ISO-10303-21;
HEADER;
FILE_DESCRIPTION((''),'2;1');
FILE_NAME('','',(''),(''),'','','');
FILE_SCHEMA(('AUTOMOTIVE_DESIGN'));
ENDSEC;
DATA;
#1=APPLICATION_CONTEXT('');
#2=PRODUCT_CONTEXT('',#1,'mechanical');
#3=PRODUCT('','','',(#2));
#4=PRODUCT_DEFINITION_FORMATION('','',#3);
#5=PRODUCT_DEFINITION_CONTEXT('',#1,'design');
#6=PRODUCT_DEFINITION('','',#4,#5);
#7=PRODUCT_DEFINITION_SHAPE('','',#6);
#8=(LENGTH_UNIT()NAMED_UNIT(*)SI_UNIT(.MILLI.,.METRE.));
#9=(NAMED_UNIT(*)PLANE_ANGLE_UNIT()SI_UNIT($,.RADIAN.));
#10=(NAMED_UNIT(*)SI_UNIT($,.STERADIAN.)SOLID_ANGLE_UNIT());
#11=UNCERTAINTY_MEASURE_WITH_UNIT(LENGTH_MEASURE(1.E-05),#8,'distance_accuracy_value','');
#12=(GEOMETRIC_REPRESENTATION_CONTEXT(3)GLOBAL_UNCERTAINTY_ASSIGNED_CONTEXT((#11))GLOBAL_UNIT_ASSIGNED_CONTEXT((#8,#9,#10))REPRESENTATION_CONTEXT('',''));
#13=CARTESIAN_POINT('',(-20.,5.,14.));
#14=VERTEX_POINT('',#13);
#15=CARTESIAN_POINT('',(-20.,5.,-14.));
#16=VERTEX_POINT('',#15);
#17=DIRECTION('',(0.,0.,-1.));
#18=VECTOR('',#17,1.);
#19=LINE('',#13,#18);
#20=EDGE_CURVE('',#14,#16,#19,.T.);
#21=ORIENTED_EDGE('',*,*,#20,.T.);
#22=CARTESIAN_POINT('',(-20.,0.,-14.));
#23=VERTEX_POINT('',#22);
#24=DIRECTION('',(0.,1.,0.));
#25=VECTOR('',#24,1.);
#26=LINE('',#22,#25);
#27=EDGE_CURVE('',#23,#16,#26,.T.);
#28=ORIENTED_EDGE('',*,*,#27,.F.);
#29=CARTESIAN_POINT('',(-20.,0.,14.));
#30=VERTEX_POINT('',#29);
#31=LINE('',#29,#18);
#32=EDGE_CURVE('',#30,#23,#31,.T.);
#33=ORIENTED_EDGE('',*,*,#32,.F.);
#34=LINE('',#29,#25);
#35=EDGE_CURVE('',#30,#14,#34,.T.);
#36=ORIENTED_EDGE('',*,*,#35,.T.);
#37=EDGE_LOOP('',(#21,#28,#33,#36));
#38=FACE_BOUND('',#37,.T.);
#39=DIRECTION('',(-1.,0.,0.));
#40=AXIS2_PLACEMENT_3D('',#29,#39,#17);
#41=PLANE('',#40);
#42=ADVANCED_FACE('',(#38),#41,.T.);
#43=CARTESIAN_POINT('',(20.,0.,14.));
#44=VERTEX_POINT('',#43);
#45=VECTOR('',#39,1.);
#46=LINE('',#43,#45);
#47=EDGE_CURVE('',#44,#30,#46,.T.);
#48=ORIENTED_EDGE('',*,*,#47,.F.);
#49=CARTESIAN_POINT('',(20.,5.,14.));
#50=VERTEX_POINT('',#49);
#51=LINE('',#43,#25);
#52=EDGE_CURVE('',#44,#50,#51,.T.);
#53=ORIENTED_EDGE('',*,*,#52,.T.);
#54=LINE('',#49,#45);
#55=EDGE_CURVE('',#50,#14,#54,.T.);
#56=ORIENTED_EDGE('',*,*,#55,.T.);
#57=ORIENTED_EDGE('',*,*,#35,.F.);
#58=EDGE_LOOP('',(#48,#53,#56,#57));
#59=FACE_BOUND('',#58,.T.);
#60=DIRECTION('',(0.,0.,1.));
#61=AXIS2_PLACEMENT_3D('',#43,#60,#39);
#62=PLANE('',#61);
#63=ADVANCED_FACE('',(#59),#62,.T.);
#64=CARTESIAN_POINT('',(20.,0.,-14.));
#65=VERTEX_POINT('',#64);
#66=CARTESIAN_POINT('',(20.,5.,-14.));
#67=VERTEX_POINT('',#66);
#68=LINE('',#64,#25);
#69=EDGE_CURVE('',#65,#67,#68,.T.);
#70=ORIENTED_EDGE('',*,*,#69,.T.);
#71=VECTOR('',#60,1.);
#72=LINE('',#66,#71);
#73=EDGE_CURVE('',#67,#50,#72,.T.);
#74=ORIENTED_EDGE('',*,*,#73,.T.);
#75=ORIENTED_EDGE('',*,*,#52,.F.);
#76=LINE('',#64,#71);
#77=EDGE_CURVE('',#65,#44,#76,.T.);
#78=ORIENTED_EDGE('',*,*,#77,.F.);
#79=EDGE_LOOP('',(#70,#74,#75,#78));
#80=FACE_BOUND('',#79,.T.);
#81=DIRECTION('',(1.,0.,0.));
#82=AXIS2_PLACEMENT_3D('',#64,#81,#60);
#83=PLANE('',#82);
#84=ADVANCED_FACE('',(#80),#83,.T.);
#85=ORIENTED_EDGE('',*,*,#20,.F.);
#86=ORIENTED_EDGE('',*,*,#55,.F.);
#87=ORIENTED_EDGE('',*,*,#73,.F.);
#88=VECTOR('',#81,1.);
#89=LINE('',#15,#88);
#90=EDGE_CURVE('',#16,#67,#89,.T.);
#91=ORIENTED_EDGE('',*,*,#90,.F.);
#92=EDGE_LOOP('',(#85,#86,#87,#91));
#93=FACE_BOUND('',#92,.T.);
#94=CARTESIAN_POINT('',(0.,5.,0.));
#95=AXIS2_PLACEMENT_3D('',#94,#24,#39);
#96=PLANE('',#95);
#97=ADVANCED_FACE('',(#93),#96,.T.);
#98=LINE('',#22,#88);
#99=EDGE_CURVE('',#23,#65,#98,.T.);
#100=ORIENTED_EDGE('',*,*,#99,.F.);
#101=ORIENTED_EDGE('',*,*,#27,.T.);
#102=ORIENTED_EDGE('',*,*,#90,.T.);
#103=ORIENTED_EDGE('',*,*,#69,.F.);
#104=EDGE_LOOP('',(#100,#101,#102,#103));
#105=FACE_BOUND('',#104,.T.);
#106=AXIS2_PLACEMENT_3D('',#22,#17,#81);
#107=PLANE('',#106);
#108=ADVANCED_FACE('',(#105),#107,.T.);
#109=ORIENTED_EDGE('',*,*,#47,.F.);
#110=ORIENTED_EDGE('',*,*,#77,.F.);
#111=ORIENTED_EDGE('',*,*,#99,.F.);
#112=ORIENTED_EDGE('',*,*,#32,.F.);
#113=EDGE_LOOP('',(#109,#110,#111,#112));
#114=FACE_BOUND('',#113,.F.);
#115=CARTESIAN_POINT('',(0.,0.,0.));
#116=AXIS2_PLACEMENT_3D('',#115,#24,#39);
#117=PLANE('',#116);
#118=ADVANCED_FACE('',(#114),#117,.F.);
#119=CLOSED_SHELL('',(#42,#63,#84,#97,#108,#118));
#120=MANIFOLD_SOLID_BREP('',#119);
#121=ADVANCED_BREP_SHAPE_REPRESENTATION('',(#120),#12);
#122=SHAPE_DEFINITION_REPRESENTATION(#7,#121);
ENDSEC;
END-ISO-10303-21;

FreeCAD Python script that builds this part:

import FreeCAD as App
import Part
import Sketcher
Q = App.Units.Quantity


def add_polygon(sketch, points):
    """Adds a closed chain of lines whose ends are joined by coincident constraints."""
    first, n = sketch.GeometryCount, len(points)
    for a, b in zip(points, points[1:] + points[:1]):
        sketch.addGeometry(Part.LineSegment(App.Vector(*a, 0), App.Vector(*b, 0)), False)
    for i in range(n):
        sketch.addConstraint(Sketcher.Constraint("Coincident", first + i, 2, first + (i + 1) % n, 1))

doc = App.newDocument("Part")
params = doc.addObject("Spreadsheet::Sheet", "Params")
for row, (alias, value) in enumerate([
    ("sketch1_width", "40 mm"),
    ("sketch1_height", "28 mm"),
    ("pad1_length", "5 mm"),
], start=1):
    params.set(f"A{row}", alias)
    params.set(f"B{row}", "=" + value)
    params.setAlias(f"B{row}", alias)

body = doc.addObject("PartDesign::Body", "Body")

# Sketch on XZ plane
sketch1 = body.newObject("Sketcher::SketchObject", "Sketch")
sketch1.AttachmentSupport = (doc.getObject("XZ_Plane"), [""])
sketch1.MapMode = "FlatFace"
add_polygon(sketch1, [(-20, 14), (20, 14), (20, -14), (-20, -14)])  # lines 0-3
sketch1.addConstraint([
    Sketcher.Constraint("Horizontal", 0),
    Sketcher.Constraint("Vertical", 1),
    Sketcher.Constraint("Horizontal", 2),
    Sketcher.Constraint("Vertical", 3),
    Sketcher.Constraint("Symmetric", 0, 2, 2, 2, -1, 1),
    Sketcher.Constraint("DistanceX", 0, 1, 0, 2, Q("40 mm")),
    Sketcher.Constraint("DistanceY", 1, 2, 1, 1, Q("28 mm")),
])
sketch1.setExpression("Constraints[9]", "Params.sketch1_width")
sketch1.setExpression("Constraints[10]", "Params.sketch1_height")
pad1 = body.newObject("PartDesign::Pad", "Pad")
pad1.Profile = sketch1
pad1.setExpression("Length", "Params.pad1_length")
pad1.Reversed = True

doc.recompute()
